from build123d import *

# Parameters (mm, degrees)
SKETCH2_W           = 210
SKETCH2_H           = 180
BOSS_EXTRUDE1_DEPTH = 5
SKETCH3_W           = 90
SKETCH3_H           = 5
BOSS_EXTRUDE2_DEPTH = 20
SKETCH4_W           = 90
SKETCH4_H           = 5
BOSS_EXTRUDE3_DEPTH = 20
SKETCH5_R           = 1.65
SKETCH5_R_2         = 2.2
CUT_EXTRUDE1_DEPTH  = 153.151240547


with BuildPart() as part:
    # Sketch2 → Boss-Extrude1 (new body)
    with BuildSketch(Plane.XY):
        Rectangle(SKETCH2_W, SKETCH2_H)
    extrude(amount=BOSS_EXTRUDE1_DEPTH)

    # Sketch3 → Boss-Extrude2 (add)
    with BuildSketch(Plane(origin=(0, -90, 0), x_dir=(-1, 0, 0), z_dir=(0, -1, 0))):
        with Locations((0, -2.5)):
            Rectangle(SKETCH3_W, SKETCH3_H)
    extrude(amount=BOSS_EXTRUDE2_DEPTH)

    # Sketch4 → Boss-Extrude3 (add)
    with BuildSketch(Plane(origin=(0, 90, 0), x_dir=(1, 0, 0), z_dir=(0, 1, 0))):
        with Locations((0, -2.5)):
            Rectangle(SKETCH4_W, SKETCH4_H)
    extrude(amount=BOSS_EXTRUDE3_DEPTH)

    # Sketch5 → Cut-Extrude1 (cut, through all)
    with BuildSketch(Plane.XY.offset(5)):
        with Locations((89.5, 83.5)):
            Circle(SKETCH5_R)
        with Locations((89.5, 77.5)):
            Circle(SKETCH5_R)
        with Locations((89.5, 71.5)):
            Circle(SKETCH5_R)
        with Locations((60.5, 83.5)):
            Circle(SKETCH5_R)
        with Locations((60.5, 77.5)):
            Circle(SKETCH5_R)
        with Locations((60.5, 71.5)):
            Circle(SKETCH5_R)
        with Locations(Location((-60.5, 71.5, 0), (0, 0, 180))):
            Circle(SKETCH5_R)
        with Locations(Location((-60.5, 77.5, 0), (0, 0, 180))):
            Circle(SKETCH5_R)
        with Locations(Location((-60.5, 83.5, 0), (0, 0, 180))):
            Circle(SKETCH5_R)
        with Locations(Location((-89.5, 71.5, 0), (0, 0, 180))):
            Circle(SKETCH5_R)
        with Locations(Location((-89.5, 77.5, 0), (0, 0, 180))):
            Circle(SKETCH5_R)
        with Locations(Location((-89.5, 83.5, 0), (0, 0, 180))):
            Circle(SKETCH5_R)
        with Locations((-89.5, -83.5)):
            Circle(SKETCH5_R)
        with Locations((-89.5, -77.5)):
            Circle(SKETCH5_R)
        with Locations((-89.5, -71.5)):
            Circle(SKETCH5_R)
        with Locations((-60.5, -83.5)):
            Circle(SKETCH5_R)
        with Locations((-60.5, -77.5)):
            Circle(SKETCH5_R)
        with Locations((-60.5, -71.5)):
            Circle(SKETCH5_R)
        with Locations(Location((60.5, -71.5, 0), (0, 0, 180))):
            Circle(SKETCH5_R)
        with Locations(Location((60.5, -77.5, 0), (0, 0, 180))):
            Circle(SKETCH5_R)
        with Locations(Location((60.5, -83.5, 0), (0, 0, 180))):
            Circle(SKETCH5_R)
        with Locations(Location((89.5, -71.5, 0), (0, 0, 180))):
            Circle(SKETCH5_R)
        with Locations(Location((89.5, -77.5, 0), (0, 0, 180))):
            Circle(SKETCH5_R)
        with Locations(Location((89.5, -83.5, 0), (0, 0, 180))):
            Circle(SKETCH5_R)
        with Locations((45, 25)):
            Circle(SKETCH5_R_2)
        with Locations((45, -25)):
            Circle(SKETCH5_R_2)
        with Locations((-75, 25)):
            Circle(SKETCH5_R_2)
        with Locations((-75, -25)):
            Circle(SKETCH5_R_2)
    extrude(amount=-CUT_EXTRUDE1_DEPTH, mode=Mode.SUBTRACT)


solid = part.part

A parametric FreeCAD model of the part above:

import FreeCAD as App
import Part
import Sketcher
from FreeCAD import Vector
Q = App.Units.Quantity

doc = App.newDocument("Part")
body = doc.addObject("PartDesign::Body", "Body")

# Sketch on XY plane
sketch1 = body.newObject("Sketcher::SketchObject", "Sketch")
sketch1.AttachmentSupport = (doc.getObject("XY_Plane"), [""])
sketch1.MapMode = "FlatFace"
sketch1.addGeometry([
    Part.LineSegment(Vector(-105, 90, 0), Vector(-105, -90, 0)),
    Part.LineSegment(Vector(-105, -90, 0), Vector(105, -90, 0)),
    Part.LineSegment(Vector(105, -90, 0), Vector(105, 90, 0)),
    Part.LineSegment(Vector(105, 90, 0), Vector(-105, 90, 0)),
], False)
sketch1.addConstraint([
    Sketcher.Constraint("Coincident", 0, 2, 1, 1),
    Sketcher.Constraint("Coincident", 1, 2, 2, 1),
    Sketcher.Constraint("Coincident", 2, 2, 3, 1),
    Sketcher.Constraint("Coincident", 3, 2, 0, 1),
    Sketcher.Constraint("Vertical", 0),
    Sketcher.Constraint("Horizontal", 1),
    Sketcher.Constraint("Vertical", 2),
    Sketcher.Constraint("Horizontal", 3),
    Sketcher.Constraint("Symmetric", 0, 2, 2, 2, -1, 1),
    Sketcher.Constraint("DistanceX", 1, 1, 1, 2, Q("210 mm")),
    Sketcher.Constraint("DistanceY", 0, 2, 0, 1, Q("180 mm")),
])
pad1 = body.newObject("PartDesign::Pad", "Pad")
pad1.Profile = sketch1
pad1.Length = 5

# Sketch on XZ plane
sketch2 = body.newObject("Sketcher::SketchObject", "Sketch001")
sketch2.AttachmentSupport = (doc.getObject("XZ_Plane"), [""])
sketch2.MapMode = "FlatFace"
sketch2.AttachmentOffset = App.Placement(Vector(0, 0, 90), App.Rotation())
sketch2.addGeometry([
    Part.LineSegment(Vector(45, 0, 0), Vector(45, 5, 0)),
    Part.LineSegment(Vector(45, 5, 0), Vector(-45, 5, 0)),
    Part.LineSegment(Vector(-45, 5, 0), Vector(-45, 0, 0)),
    Part.LineSegment(Vector(-45, 0, 0), Vector(45, 0, 0)),
], False)
sketch2.addConstraint([
    Sketcher.Constraint("Coincident", 0, 2, 1, 1),
    Sketcher.Constraint("Coincident", 1, 2, 2, 1),
    Sketcher.Constraint("Coincident", 2, 2, 3, 1),
    Sketcher.Constraint("Coincident", 3, 2, 0, 1),
    Sketcher.Constraint("Vertical", 0),
    Sketcher.Constraint("Horizontal", 1),
    Sketcher.Constraint("Vertical", 2),
    Sketcher.Constraint("Horizontal", 3),
    Sketcher.Constraint("Symmetric", 2, 2, 3, 2, -1, 1),
    Sketcher.Constraint("DistanceX", 1, 2, 1, 1, Q("90 mm")),
    Sketcher.Constraint("DistanceY", 0, 1, 0, 2, Q("5 mm")),
])
pad2 = body.newObject("PartDesign::Pad", "Pad001")
pad2.Profile = sketch2
pad2.Length = 20

# Sketch on XZ plane
sketch3 = body.newObject("Sketcher::SketchObject", "Sketch002")
sketch3.AttachmentSupport = (doc.getObject("XZ_Plane"), [""])
sketch3.MapMode = "FlatFace"
sketch3.AttachmentOffset = App.Placement(Vector(0, 0, -90), App.Rotation())
sketch3.addGeometry([
    Part.LineSegment(Vector(-45, 0, 0), Vector(-45, 5, 0)),
    Part.LineSegment(Vector(-45, 5, 0), Vector(45, 5, 0)),
    Part.LineSegment(Vector(45, 5, 0), Vector(45, 0, 0)),
    Part.LineSegment(Vector(45, 0, 0), Vector(-45, 0, 0)),
], False)
sketch3.addConstraint([
    Sketcher.Constraint("Coincident", 0, 2, 1, 1),
    Sketcher.Constraint("Coincident", 1, 2, 2, 1),
    Sketcher.Constraint("Coincident", 2, 2, 3, 1),
    Sketcher.Constraint("Coincident", 3, 2, 0, 1),
    Sketcher.Constraint("Vertical", 0),
    Sketcher.Constraint("Horizontal", 1),
    Sketcher.Constraint("Vertical", 2),
    Sketcher.Constraint("Horizontal", 3),
    Sketcher.Constraint("Symmetric", 2, 2, 3, 2, -1, 1),
    Sketcher.Constraint("DistanceX", 1, 1, 1, 2, Q("90 mm")),
    Sketcher.Constraint("DistanceY", 0, 1, 0, 2, Q("5 mm")),
])
pad3 = body.newObject("PartDesign::Pad", "Pad002")
pad3.Profile = sketch3
pad3.Length = 20
pad3.Reversed = True

# Sketch on XY plane
sketch4 = body.newObject("Sketcher::SketchObject", "Sketch003")
sketch4.AttachmentSupport = (doc.getObject("XY_Plane"), [""])
sketch4.MapMode = "FlatFace"
sketch4.AttachmentOffset = App.Placement(Vector(0, 0, 5), App.Rotation())
sketch4.addGeometry([
    Part.Circle(Vector(89.5, 83.5, 0), Vector(0, 0, 1), 1.6),  # 0
    Part.Circle(Vector(89.5, 77.5, 0), Vector(0, 0, 1), 1.6),  # 1
    Part.Circle(Vector(89.5, 71.5, 0), Vector(0, 0, 1), 1.6),  # 2
    Part.Circle(Vector(60.5, 83.5, 0), Vector(0, 0, 1), 1.6),  # 3
    Part.Circle(Vector(60.5, 77.5, 0), Vector(0, 0, 1), 1.6),  # 4
    Part.Circle(Vector(60.5, 71.5, 0), Vector(0, 0, 1), 1.6),  # 5
    Part.Circle(Vector(-60.5, 71.5, 0), Vector(0, 0, 1), 1.6),  # 6
    Part.Circle(Vector(-60.5, 77.5, 0), Vector(0, 0, 1), 1.6),  # 7
    Part.Circle(Vector(-60.5, 83.5, 0), Vector(0, 0, 1), 1.6),  # 8
    Part.Circle(Vector(-89.5, 71.5, 0), Vector(0, 0, 1), 1.6),  # 9
    Part.Circle(Vector(-89.5, 77.5, 0), Vector(0, 0, 1), 1.6),  # 10
    Part.Circle(Vector(-89.5, 83.5, 0), Vector(0, 0, 1), 1.6),  # 11
    Part.Circle(Vector(-89.5, -83.5, 0), Vector(0, 0, 1), 1.6),  # 12
    Part.Circle(Vector(-89.5, -77.5, 0), Vector(0, 0, 1), 1.6),  # 13
    Part.Circle(Vector(-89.5, -71.5, 0), Vector(0, 0, 1), 1.6),  # 14
    Part.Circle(Vector(-60.5, -83.5, 0), Vector(0, 0, 1), 1.6),  # 15
    Part.Circle(Vector(-60.5, -77.5, 0), Vector(0, 0, 1), 1.6),  # 16
    Part.Circle(Vector(-60.5, -71.5, 0), Vector(0, 0, 1), 1.6),  # 17
    Part.Circle(Vector(60.5, -71.5, 0), Vector(0, 0, 1), 1.6),  # 18
    Part.Circle(Vector(60.5, -77.5, 0), Vector(0, 0, 1), 1.6),  # 19
    Part.Circle(Vector(60.5, -83.5, 0), Vector(0, 0, 1), 1.6),  # 20
    Part.Circle(Vector(89.5, -71.5, 0), Vector(0, 0, 1), 1.6),  # 21
    Part.Circle(Vector(89.5, -77.5, 0), Vector(0, 0, 1), 1.6),  # 22
    Part.Circle(Vector(89.5, -83.5, 0), Vector(0, 0, 1), 1.6),  # 23
    Part.Circle(Vector(45, 25, 0), Vector(0, 0, 1), 2.2),  # 24
    Part.Circle(Vector(45, -25, 0), Vector(0, 0, 1), 2.2),  # 25
    Part.Circle(Vector(-75, 25, 0), Vector(0, 0, 1), 2.2),  # 26
    Part.Circle(Vector(-75, -25, 0), Vector(0, 0, 1), 2.2),  # 27
], False)
sketch4.addConstraint([
    Sketcher.Constraint("Equal", 0, 1),
    Sketcher.Constraint("Equal", 1, 2),
    Sketcher.Constraint("Equal", 2, 3),
    Sketcher.Constraint("Equal", 3, 4),
    Sketcher.Constraint("Equal", 4, 5),
    Sketcher.Constraint("Equal", 5, 6),
    Sketcher.Constraint("Equal", 6, 7),
    Sketcher.Constraint("Equal", 7, 8),
    Sketcher.Constraint("Equal", 8, 9),
    Sketcher.Constraint("Equal", 9, 10),
    Sketcher.Constraint("Equal", 10, 11),
    Sketcher.Constraint("Equal", 11, 12),
    Sketcher.Constraint("Equal", 12, 13),
    Sketcher.Constraint("Equal", 13, 14),
    Sketcher.Constraint("Equal", 14, 15),
    Sketcher.Constraint("Equal", 15, 16),
    Sketcher.Constraint("Equal", 16, 17),
    Sketcher.Constraint("Equal", 17, 18),
    Sketcher.Constraint("Equal", 18, 19),
    Sketcher.Constraint("Equal", 19, 20),
    Sketcher.Constraint("Equal", 20, 21),
    Sketcher.Constraint("Equal", 21, 22),
    Sketcher.Constraint("Equal", 22, 23),
    Sketcher.Constraint("Equal", 24, 25),
    Sketcher.Constraint("Equal", 25, 26),
    Sketcher.Constraint("Equal", 26, 27),
    Sketcher.Constraint("Symmetric", 0, 3, 12, 3, -1, 1),
    Sketcher.Constraint("Symmetric", 1, 3, 13, 3, -1, 1),
    Sketcher.Constraint("Symmetric", 2, 3, 14, 3, -1, 1),
    Sketcher.Constraint("Symmetric", 3, 3, 15, 3, -1, 1),
    Sketcher.Constraint("Symmetric", 4, 3, 16, 3, -1, 1),
    Sketcher.Constraint("Symmetric", 5, 3, 17, 3, -1, 1),
    Sketcher.Constraint("Symmetric", 6, 3, 18, 3, -1, 1),
    Sketcher.Constraint("Symmetric", 7, 3, 19, 3, -1, 1),
    Sketcher.Constraint("Symmetric", 8, 3, 20, 3, -1, 1),
    Sketcher.Constraint("Symmetric", 9, 3, 21, 3, -1, 1),
    Sketcher.Constraint("Symmetric", 10, 3, 22, 3, -1, 1),
    Sketcher.Constraint("Symmetric", 11, 3, 23, 3, -1, 1),
    Sketcher.Constraint("Symmetric", 5, 3, 6, 3, -2),
    Sketcher.Constraint("Symmetric", 4, 3, 7, 3, -2),
    Sketcher.Constraint("Symmetric", 3, 3, 8, 3, -2),
    Sketcher.Constraint("Symmetric", 2, 3, 9, 3, -2),
    Sketcher.Constraint("Symmetric", 1, 3, 10, 3, -2),
    Sketcher.Constraint("Symmetric", 0, 3, 11, 3, -2),
    Sketcher.Constraint("Symmetric", 24, 3, 25, 3, -1),
    Sketcher.Constraint("Symmetric", 26, 3, 27, 3, -1),
    Sketcher.Constraint("Horizontal", 0, 3, 3, 3),
    Sketcher.Constraint("Horizontal", 1, 3, 4, 3),
    Sketcher.Constraint("Horizontal", 2, 3, 5, 3),
    Sketcher.Constraint("Horizontal", 24, 3, 26, 3),
    Sketcher.Constraint("Vertical", 0, 3, 1, 3),
    Sketcher.Constraint("Vertical", 1, 3, 2, 3),
    Sketcher.Constraint("Vertical", 3, 3, 4, 3),
    Sketcher.Constraint("Vertical", 4, 3, 5, 3),
    Sketcher.Constraint("Diameter", 0, Q("3.3 mm")),
    Sketcher.Constraint("Diameter", 24, Q("4.4 mm")),
    Sketcher.Constraint("DistanceX", -1, 1, 24, 3, Q("45 mm")),
    Sketcher.Constraint("DistanceY", -1, 1, 24, 3, Q("25 mm")),
    Sketcher.Constraint("DistanceX", 26, 3, -1, 1, Q("75 mm")),
    Sketcher.Constraint("DistanceY", 1, 3, 0, 3, Q("6 mm")),
    Sketcher.Constraint("DistanceY", 2, 3, 1, 3, Q("6 mm")),
    Sketcher.Constraint("DistanceX", 3, 3, 0, 3, Q("29 mm")),
    Sketcher.Constraint("DistanceX", 6, 3, 5, 3, Q("121 mm")),
    Sketcher.Constraint("DistanceY", 12, 3, 9, 3, Q("155 mm")),
])
pocket1 = body.newObject("PartDesign::Pocket", "Pocket")
pocket1.Profile = sketch4
pocket1.Type = "ThroughAll"

doc.recompute()
